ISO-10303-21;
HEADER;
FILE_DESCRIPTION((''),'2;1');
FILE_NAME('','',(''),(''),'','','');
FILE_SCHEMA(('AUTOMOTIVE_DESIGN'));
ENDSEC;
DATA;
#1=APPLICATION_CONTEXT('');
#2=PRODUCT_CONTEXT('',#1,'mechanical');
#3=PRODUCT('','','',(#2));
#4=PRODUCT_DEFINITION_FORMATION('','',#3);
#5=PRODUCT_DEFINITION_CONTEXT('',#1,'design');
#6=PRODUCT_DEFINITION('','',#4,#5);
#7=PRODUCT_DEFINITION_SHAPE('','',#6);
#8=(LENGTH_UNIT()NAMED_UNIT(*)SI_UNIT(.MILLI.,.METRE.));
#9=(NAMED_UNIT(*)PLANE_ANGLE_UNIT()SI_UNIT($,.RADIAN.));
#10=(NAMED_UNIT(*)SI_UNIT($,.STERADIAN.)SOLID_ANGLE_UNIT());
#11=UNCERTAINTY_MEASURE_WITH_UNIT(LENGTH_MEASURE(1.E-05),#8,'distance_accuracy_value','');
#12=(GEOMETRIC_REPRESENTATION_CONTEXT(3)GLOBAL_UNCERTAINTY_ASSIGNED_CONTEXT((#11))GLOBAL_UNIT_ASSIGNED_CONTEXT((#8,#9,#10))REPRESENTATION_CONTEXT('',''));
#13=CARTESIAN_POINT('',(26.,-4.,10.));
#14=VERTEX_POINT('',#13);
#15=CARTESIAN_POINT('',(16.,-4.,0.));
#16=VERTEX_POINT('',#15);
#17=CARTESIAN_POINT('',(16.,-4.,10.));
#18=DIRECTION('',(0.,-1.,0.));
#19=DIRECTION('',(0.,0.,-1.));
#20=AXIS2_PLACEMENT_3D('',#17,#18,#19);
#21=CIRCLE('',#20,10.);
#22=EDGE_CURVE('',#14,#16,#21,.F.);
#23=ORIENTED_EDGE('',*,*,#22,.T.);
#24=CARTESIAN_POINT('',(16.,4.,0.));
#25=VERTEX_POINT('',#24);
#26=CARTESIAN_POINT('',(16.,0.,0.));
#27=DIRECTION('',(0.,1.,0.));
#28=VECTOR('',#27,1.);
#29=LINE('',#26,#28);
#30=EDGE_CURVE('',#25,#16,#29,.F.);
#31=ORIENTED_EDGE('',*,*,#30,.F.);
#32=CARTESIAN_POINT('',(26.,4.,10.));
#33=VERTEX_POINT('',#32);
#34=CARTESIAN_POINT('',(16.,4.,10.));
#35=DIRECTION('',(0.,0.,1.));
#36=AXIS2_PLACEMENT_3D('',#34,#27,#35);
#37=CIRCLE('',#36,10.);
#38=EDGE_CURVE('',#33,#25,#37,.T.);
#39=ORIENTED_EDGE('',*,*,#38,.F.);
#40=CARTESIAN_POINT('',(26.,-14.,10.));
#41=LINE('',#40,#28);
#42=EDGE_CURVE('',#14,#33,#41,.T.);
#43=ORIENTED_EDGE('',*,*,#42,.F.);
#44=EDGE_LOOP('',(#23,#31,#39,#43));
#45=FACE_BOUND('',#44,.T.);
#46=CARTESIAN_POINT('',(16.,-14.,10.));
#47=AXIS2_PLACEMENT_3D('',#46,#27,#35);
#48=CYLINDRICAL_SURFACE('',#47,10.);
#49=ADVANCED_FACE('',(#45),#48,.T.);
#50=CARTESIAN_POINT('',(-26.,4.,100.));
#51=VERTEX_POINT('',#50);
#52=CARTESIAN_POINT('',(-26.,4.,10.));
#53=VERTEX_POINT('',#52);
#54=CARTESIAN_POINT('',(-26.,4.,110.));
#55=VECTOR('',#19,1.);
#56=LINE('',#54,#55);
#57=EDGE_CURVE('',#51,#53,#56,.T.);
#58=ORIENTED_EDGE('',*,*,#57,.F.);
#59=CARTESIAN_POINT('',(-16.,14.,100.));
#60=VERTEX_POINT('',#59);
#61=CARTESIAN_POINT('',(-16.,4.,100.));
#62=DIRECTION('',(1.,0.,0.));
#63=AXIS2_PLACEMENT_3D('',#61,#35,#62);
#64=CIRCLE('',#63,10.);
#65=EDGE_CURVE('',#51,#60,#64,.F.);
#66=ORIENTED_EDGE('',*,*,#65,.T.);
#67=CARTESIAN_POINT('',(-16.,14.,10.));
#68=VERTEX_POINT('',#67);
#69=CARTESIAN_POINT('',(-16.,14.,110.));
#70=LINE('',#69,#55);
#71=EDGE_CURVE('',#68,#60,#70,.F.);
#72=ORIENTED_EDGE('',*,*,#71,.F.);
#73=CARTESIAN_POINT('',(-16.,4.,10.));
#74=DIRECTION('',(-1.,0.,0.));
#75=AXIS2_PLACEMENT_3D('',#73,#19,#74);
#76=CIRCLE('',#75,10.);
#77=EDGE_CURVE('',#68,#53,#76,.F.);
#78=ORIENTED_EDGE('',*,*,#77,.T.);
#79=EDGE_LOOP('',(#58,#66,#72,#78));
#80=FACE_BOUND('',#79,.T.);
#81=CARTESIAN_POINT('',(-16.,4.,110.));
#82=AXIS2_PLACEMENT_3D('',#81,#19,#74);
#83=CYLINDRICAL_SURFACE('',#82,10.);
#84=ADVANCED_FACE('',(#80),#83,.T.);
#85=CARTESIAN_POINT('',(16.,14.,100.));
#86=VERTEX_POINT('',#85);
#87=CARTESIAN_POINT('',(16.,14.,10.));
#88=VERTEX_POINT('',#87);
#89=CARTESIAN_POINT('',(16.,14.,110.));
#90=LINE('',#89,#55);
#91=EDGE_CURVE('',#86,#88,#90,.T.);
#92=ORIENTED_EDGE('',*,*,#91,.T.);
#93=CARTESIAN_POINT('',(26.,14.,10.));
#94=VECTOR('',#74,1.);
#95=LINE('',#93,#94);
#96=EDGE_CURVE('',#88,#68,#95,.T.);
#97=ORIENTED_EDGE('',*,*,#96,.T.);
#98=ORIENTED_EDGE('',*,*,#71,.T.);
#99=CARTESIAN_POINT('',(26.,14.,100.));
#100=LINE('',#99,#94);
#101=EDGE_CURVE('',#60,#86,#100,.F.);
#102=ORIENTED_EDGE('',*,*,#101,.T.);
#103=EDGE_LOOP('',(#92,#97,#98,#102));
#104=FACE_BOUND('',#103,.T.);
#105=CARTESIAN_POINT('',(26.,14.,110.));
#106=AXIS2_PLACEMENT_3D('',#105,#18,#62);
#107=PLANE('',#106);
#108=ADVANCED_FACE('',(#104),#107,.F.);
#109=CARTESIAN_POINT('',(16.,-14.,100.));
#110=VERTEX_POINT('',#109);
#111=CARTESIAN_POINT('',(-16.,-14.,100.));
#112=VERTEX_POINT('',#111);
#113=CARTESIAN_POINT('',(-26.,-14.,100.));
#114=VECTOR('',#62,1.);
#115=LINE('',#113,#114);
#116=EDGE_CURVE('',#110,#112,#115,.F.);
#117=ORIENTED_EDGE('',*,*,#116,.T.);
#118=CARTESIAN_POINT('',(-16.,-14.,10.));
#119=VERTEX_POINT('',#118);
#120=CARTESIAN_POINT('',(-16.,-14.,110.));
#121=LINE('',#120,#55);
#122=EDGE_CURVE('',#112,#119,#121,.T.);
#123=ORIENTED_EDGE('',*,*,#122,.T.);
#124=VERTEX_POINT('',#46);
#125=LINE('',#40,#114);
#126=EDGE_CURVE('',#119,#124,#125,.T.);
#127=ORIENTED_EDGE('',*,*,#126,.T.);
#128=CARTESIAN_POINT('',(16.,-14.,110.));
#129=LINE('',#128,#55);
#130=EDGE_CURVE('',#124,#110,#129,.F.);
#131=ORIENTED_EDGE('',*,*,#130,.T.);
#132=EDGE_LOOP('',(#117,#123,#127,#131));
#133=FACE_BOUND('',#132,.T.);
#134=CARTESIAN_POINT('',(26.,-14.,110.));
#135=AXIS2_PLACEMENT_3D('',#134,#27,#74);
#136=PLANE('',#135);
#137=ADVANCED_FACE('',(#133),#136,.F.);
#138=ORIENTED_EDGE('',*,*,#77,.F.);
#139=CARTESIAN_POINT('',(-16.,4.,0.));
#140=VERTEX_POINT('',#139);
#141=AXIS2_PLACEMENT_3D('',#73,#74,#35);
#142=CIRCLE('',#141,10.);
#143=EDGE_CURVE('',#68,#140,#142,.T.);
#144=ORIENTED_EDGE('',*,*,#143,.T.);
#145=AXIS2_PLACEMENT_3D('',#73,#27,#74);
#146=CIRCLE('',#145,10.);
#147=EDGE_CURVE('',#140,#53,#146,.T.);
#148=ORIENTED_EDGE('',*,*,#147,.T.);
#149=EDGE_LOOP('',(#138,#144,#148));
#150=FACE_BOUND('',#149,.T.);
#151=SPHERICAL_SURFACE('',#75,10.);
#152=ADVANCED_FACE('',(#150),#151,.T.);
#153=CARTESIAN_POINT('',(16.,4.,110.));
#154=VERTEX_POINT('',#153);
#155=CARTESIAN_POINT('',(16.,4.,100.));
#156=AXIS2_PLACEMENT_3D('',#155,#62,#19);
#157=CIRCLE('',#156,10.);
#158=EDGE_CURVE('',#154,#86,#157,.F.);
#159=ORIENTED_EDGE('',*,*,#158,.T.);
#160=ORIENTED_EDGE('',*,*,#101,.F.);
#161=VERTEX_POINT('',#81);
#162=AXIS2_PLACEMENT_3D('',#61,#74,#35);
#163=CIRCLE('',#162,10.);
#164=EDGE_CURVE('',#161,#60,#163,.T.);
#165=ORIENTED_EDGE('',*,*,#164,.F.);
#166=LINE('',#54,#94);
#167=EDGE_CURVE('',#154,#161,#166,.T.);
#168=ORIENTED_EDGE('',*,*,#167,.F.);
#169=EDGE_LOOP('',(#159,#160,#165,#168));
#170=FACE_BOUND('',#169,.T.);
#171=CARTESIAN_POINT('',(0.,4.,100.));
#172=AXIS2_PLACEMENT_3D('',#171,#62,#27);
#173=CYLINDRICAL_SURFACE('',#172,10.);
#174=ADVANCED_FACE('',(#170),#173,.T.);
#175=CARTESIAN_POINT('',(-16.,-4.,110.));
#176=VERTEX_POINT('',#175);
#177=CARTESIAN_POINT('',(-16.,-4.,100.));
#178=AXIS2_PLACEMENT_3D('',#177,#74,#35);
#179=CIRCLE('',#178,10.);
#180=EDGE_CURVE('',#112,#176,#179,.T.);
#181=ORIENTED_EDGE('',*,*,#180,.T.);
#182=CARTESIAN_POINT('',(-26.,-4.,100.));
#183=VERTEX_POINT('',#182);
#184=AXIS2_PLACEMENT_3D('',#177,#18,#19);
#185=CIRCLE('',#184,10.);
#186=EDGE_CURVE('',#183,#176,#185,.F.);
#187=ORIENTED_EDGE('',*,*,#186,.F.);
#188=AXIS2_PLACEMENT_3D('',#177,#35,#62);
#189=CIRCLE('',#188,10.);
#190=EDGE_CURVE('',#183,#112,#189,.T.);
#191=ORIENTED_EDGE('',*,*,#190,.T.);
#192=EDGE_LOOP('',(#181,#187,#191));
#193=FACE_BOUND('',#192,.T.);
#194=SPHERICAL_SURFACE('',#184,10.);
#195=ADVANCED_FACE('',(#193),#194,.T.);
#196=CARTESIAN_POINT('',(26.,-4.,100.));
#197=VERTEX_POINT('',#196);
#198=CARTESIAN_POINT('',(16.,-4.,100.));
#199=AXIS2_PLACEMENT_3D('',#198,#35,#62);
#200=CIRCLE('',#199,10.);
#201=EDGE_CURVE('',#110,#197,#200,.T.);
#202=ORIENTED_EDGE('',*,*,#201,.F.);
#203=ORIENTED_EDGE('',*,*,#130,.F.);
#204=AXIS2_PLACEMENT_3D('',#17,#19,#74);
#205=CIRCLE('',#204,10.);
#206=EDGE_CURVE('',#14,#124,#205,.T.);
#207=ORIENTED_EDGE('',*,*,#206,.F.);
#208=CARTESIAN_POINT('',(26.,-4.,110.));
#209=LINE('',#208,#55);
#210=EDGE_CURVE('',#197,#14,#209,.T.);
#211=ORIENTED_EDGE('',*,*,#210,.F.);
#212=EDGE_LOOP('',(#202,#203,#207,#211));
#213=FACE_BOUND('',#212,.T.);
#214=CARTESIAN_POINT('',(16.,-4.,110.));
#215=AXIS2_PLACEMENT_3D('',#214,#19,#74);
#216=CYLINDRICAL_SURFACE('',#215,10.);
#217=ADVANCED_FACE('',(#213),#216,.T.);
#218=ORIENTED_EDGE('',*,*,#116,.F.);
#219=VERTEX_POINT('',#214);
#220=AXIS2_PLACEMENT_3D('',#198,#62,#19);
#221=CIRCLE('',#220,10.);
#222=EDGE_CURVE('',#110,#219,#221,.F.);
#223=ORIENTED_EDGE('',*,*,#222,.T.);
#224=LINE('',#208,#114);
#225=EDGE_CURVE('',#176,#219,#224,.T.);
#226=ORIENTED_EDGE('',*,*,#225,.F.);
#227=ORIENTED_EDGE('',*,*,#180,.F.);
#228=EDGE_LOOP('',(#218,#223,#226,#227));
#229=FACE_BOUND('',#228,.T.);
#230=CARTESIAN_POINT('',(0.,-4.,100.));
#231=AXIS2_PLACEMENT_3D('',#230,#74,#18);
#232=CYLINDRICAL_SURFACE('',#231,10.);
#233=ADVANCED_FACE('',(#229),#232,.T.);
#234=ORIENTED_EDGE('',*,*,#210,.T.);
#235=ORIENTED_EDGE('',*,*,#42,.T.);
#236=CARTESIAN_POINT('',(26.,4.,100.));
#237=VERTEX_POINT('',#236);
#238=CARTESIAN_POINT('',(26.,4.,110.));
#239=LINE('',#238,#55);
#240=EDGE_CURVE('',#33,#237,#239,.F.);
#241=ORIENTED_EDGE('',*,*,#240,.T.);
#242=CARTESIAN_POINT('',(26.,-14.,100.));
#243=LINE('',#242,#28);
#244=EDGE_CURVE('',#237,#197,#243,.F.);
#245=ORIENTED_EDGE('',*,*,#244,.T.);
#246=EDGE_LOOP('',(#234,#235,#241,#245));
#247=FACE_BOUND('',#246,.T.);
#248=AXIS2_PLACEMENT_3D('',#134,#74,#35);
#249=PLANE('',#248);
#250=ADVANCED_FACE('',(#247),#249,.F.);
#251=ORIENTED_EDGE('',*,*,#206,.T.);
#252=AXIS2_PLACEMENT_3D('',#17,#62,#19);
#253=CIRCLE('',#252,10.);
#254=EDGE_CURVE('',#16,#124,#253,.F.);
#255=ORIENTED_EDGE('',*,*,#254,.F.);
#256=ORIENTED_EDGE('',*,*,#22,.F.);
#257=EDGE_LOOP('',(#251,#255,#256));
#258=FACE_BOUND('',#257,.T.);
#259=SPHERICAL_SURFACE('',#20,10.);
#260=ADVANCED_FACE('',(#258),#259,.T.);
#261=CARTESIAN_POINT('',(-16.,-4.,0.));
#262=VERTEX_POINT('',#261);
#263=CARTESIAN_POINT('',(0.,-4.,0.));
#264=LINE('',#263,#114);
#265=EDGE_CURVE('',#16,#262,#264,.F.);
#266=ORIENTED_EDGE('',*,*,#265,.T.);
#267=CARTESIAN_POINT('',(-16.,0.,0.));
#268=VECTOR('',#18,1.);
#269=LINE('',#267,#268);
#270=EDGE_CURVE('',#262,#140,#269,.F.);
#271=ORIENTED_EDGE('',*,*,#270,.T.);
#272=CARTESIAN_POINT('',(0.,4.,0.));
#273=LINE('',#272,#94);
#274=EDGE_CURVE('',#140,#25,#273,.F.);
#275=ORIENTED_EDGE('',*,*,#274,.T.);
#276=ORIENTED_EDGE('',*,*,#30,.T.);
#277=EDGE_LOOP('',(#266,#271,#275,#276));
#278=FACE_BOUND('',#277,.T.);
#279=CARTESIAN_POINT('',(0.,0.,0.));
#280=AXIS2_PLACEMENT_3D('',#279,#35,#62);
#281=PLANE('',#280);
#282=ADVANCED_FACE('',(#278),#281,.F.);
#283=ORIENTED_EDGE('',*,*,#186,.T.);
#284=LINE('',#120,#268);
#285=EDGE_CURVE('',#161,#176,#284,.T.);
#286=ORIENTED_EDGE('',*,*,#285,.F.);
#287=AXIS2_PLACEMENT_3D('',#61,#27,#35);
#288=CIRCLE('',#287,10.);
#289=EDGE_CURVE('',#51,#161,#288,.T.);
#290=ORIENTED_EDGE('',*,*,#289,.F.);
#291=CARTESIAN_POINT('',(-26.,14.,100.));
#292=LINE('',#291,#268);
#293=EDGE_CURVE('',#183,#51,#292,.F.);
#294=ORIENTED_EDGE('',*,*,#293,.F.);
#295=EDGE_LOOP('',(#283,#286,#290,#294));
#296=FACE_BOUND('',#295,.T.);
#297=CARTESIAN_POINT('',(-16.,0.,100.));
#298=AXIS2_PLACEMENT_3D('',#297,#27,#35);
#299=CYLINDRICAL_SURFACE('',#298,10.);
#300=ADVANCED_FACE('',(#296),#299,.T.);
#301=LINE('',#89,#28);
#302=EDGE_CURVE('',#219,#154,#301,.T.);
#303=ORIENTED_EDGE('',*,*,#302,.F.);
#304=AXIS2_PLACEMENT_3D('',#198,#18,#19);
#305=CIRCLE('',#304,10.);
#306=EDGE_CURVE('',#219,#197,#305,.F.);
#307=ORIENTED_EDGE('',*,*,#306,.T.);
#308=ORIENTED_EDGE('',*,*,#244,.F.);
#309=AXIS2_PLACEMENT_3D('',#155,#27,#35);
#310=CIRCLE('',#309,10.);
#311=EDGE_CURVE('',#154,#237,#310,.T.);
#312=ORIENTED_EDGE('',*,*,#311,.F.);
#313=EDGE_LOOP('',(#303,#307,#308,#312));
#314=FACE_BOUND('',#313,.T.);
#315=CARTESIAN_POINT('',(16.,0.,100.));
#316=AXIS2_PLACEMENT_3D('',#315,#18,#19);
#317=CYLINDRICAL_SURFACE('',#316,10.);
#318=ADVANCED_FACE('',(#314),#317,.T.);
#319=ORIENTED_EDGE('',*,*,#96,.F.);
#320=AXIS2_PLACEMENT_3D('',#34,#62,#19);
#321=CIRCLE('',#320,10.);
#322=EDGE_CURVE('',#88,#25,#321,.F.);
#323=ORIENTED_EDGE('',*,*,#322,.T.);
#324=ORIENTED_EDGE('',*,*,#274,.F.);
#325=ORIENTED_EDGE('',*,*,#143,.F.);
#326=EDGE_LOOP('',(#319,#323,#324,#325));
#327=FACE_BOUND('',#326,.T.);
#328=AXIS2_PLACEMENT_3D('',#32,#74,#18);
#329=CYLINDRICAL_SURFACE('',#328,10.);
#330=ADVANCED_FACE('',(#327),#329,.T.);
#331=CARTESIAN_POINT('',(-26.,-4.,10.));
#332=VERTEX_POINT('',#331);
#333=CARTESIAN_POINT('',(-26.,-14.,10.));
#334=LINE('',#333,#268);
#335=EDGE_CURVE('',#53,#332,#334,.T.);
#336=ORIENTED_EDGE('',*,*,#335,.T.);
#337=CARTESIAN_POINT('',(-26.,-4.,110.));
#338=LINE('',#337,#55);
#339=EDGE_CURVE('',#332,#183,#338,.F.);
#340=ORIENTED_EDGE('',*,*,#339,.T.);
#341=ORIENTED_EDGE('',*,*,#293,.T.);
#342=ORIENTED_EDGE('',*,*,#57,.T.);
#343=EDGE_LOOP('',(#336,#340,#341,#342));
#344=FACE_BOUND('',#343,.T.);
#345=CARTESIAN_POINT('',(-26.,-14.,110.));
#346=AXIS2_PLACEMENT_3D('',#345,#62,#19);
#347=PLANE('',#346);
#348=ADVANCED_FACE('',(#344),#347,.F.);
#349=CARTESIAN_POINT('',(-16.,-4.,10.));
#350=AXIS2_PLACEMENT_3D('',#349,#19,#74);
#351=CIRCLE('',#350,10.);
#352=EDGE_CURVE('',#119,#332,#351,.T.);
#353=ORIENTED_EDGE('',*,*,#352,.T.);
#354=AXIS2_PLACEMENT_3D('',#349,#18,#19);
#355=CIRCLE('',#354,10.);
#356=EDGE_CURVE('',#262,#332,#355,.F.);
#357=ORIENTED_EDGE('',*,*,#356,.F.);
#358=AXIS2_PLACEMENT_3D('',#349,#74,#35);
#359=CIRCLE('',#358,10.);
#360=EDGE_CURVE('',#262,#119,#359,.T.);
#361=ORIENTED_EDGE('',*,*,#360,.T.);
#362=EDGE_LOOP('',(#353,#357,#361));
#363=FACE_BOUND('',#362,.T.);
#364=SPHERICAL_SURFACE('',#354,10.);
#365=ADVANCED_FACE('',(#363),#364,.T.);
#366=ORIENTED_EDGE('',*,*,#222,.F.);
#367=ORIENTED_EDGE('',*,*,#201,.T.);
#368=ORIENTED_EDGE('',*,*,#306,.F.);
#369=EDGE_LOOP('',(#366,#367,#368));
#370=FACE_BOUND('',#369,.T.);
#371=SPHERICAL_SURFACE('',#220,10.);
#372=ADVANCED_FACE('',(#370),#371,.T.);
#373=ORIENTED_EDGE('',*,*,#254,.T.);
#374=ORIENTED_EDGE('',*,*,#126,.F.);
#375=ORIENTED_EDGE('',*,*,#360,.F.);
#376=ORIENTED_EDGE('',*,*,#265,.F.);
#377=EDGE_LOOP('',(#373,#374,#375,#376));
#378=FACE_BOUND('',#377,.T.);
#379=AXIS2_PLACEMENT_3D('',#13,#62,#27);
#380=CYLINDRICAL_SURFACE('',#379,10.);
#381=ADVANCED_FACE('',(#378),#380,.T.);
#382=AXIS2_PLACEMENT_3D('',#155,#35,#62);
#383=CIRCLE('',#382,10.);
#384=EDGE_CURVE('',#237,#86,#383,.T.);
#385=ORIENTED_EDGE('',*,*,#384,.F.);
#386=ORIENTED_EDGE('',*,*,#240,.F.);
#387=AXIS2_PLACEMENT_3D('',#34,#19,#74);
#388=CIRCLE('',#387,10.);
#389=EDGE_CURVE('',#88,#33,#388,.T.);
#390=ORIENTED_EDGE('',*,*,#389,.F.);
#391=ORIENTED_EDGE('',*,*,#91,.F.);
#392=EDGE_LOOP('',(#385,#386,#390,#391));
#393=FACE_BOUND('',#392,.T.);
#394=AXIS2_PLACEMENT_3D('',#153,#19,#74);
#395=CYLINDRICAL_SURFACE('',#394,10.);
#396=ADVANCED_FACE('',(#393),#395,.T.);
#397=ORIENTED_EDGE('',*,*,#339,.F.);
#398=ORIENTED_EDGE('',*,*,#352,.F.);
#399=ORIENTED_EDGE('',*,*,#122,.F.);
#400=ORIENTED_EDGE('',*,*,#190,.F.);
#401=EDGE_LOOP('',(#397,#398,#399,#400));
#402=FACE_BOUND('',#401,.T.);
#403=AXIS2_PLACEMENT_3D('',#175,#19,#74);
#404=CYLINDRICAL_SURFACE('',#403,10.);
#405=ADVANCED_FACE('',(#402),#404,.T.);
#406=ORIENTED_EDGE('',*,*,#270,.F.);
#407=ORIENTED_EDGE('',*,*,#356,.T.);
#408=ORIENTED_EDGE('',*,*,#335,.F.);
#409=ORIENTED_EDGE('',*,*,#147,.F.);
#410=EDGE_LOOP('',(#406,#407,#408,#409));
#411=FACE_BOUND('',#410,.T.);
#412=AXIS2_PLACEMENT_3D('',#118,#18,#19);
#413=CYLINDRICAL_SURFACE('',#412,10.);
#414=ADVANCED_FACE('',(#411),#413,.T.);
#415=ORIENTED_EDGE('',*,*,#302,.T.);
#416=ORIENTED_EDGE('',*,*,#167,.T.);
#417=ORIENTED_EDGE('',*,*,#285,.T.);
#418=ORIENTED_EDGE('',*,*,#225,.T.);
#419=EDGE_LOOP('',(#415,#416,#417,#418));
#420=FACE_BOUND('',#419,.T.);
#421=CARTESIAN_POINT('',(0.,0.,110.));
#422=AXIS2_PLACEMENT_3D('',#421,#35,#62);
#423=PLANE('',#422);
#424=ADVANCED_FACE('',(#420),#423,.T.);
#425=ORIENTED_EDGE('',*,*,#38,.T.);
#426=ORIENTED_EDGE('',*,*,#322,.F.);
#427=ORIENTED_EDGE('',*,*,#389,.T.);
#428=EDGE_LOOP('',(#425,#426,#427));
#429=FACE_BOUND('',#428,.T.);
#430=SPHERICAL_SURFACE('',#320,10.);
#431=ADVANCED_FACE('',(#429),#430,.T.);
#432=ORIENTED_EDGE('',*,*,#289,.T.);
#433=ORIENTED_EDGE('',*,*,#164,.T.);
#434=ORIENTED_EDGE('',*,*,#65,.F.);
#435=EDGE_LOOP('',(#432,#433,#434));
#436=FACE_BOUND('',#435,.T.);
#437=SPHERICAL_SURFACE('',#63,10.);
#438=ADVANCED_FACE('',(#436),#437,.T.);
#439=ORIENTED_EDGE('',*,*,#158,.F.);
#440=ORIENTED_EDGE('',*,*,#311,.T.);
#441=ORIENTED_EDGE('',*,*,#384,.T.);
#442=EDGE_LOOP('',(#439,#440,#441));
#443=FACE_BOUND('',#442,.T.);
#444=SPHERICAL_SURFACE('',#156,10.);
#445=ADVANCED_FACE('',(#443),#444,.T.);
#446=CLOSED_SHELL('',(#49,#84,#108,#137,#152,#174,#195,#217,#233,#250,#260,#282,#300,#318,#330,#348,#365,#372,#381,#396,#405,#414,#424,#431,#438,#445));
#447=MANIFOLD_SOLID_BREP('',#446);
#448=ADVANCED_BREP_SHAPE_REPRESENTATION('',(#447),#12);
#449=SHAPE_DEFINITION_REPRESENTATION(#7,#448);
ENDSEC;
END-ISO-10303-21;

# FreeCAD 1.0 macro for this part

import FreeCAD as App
import Part
import Sketcher
from FreeCAD import Vector
Q = App.Units.Quantity

doc = App.newDocument("Part")
body = doc.addObject("PartDesign::Body", "Body")

# Sketch on XY plane
sketch1 = body.newObject("Sketcher::SketchObject", "Sketch")
sketch1.AttachmentSupport = (doc.getObject("XY_Plane"), [""])
sketch1.MapMode = "FlatFace"
sketch1.addGeometry([
    Part.LineSegment(Vector(-26, 14, 0), Vector(-26, -14, 0)),
    Part.LineSegment(Vector(-26, -14, 0), Vector(26, -14, 0)),
    Part.LineSegment(Vector(26, -14, 0), Vector(26, 14, 0)),
    Part.LineSegment(Vector(26, 14, 0), Vector(-26, 14, 0)),
], False)
sketch1.addConstraint([
    Sketcher.Constraint("Coincident", 0, 2, 1, 1),
    Sketcher.Constraint("Coincident", 1, 2, 2, 1),
    Sketcher.Constraint("Coincident", 2, 2, 3, 1),
    Sketcher.Constraint("Coincident", 3, 2, 0, 1),
    Sketcher.Constraint("Vertical", 0),
    Sketcher.Constraint("Horizontal", 1),
    Sketcher.Constraint("Vertical", 2),
    Sketcher.Constraint("Horizontal", 3),
    Sketcher.Constraint("Symmetric", 0, 2, 2, 2, -1, 1),
    Sketcher.Constraint("DistanceX", 1, 1, 1, 2, Q("52 mm")),
    Sketcher.Constraint("DistanceY", 0, 2, 0, 1, Q("28 mm")),
])
pad1 = body.newObject("PartDesign::Pad", "Pad")
pad1.Profile = sketch1
pad1.Length = 110
doc.recompute()

fillet = body.newObject("PartDesign::Fillet", "Fillet")
fillet.Base = (pad1, ["Edge1"])
fillet.UseAllEdges = True
fillet.Radius = 10

doc.recompute()
